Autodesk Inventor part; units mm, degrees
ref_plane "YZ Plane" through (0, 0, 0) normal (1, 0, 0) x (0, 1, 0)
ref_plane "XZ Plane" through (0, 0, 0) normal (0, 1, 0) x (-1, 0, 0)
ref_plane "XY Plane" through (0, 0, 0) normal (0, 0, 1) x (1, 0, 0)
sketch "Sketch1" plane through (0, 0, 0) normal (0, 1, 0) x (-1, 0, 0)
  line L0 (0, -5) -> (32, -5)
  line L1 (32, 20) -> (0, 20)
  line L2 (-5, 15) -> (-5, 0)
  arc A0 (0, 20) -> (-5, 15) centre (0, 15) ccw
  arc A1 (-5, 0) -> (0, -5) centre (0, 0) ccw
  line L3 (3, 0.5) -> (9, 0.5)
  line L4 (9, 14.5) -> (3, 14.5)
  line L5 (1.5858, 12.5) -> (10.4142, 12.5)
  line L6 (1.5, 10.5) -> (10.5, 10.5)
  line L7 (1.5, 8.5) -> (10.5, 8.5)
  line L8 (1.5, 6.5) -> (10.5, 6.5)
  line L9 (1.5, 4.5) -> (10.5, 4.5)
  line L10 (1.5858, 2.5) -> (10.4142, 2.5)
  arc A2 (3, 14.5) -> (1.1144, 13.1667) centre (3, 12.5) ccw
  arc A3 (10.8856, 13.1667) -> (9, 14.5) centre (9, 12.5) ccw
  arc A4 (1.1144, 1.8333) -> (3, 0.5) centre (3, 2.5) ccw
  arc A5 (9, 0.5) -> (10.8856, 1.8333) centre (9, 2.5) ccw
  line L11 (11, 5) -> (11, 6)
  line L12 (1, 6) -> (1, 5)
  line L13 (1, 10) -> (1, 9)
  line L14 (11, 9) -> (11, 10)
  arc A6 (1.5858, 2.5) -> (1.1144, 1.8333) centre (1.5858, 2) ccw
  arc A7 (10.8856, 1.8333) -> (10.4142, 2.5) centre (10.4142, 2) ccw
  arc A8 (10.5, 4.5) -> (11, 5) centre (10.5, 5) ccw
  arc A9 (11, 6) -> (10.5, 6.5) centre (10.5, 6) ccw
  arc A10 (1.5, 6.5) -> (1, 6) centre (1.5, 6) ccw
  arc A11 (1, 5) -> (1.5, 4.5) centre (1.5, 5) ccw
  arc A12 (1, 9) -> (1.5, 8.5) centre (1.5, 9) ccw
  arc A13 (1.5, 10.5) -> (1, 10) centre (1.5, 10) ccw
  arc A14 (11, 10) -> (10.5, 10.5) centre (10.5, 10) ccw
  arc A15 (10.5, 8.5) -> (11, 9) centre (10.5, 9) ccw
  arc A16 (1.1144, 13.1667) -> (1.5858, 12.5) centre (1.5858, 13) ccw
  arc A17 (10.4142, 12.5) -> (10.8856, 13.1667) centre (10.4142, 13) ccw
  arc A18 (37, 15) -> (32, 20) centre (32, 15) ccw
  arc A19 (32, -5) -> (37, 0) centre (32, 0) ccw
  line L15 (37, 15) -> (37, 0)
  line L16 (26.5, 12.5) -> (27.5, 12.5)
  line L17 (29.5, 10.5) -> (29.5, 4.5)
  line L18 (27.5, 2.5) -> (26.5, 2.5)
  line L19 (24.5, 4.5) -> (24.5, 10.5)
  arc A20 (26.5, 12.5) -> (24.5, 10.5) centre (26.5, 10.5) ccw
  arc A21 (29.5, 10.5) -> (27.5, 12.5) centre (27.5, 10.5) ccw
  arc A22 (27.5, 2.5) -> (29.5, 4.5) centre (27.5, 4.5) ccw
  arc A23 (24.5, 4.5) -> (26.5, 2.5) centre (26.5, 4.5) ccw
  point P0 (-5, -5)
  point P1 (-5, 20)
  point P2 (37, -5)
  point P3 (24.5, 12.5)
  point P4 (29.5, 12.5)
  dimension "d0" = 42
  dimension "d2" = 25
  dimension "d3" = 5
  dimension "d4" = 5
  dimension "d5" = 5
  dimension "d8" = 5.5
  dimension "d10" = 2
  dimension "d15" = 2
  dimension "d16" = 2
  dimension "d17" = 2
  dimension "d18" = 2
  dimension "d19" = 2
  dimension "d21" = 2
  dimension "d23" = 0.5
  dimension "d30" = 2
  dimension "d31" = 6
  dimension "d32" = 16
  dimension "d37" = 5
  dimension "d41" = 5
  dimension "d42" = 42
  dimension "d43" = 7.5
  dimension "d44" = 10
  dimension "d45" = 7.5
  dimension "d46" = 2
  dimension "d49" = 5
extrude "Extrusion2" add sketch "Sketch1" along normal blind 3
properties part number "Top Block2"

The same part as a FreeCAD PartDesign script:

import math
import FreeCAD as App
import Part
import Sketcher
from FreeCAD import Vector
Q = App.Units.Quantity

doc = App.newDocument("Part")
params = doc.addObject("Spreadsheet::Sheet", "Params")
for row, (alias, value) in enumerate([
    ("sketch1_radius", "5 mm"),
    ("sketch1_radius2", "2 mm"),
    ("sketch1_radius3", "0.5 mm"),
    ("sketch1_width", "6 mm"),
    ("sketch1_width2", "32 mm"),
    ("pad1_length", "3 mm"),
], start=1):
    params.set(f"A{row}", alias)
    params.set(f"B{row}", "=" + value)
    params.setAlias(f"B{row}", alias)

body = doc.addObject("PartDesign::Body", "Body")

# Sketch on XZ plane
sketch1 = body.newObject("Sketcher::SketchObject", "Sketch")
sketch1.AttachmentSupport = (doc.getObject("XZ_Plane"), [""])
sketch1.MapMode = "FlatFace"
sketch1.addGeometry([
    Part.ArcOfCircle(Part.Circle(Vector(0, 0, 0), Vector(0, 0, 1), 5), math.radians(-90), math.radians(0)),  # 0
    Part.LineSegment(Vector(0, -5, 0), Vector(-32, -5, 0)),  # 1
    Part.ArcOfCircle(Part.Circle(Vector(-32, 0, 0), Vector(0, 0, 1), 5), math.radians(180), math.radians(270)),  # 2
    Part.LineSegment(Vector(-37, 0, 0), Vector(-37, 15, 0)),  # 3
    Part.ArcOfCircle(Part.Circle(Vector(-32, 15, 0), Vector(0, 0, 1), 5), math.radians(90), math.radians(180)),  # 4
    Part.LineSegment(Vector(-32, 20, 0), Vector(0, 20, 0)),  # 5
    Part.ArcOfCircle(Part.Circle(Vector(0, 15, 0), Vector(0, 0, 1), 5), math.radians(0), math.radians(90)),  # 6
    Part.LineSegment(Vector(5, 15, 0), Vector(5, 0, 0)),  # 7
    Part.LineSegment(Vector(-9, 0.5, 0), Vector(-3, 0.5, 0)),  # 8
    Part.ArcOfCircle(Part.Circle(Vector(-3, 2.5, 0), Vector(0, 0, 1), 1.999994), math.radians(-90), math.radians(-19.472294)),  # 9
    Part.ArcOfCircle(Part.Circle(Vector(-1.5858, 2, 0), Vector(0, 0, 1), 0.5), math.radians(-19.474995), math.radians(90)),  # 10
    Part.LineSegment(Vector(-1.5858, 2.5, 0), Vector(-10.4142, 2.5, 0)),  # 11
    Part.ArcOfCircle(Part.Circle(Vector(-10.4142, 2, 0), Vector(0, 0, 1), 0.500007), math.radians(90), math.radians(199.474995)),  # 12
    Part.ArcOfCircle(Part.Circle(Vector(-9, 2.5, 0), Vector(0, 0, 1), 2), math.radians(-160.527706), math.radians(-90)),  # 13
    Part.ArcOfCircle(Part.Circle(Vector(-1.5, 6, 0), Vector(0, 0, 1), 0.5), math.radians(0), math.radians(90)),  # 14
    Part.LineSegment(Vector(-1.5, 6.5, 0), Vector(-10.5, 6.5, 0)),  # 15
    Part.ArcOfCircle(Part.Circle(Vector(-10.5, 6, 0), Vector(0, 0, 1), 0.5), math.radians(90), math.radians(180)),  # 16
    Part.LineSegment(Vector(-11, 6, 0), Vector(-11, 5, 0)),  # 17
    Part.ArcOfCircle(Part.Circle(Vector(-10.5, 5, 0), Vector(0, 0, 1), 0.5), math.radians(180), math.radians(270)),  # 18
    Part.LineSegment(Vector(-10.5, 4.5, 0), Vector(-1.5, 4.5, 0)),  # 19
    Part.ArcOfCircle(Part.Circle(Vector(-1.5, 5, 0), Vector(0, 0, 1), 0.5), math.radians(-90), math.radians(0)),  # 20
    Part.LineSegment(Vector(-1, 5, 0), Vector(-1, 6, 0)),  # 21
    Part.ArcOfCircle(Part.Circle(Vector(-1.5, 10, 0), Vector(0, 0, 1), 0.5), math.radians(0), math.radians(90)),  # 22
    Part.LineSegment(Vector(-1.5, 10.5, 0), Vector(-10.5, 10.5, 0)),  # 23
    Part.ArcOfCircle(Part.Circle(Vector(-10.5, 10, 0), Vector(0, 0, 1), 0.5), math.radians(90), math.radians(180)),  # 24
    Part.LineSegment(Vector(-11, 10, 0), Vector(-11, 9, 0)),  # 25
    Part.ArcOfCircle(Part.Circle(Vector(-10.5, 9, 0), Vector(0, 0, 1), 0.5), math.radians(180), math.radians(270)),  # 26
    Part.LineSegment(Vector(-10.5, 8.5, 0), Vector(-1.5, 8.5, 0)),  # 27
    Part.ArcOfCircle(Part.Circle(Vector(-1.5, 9, 0), Vector(0, 0, 1), 0.5), math.radians(-90), math.radians(0)),  # 28
    Part.LineSegment(Vector(-1, 9, 0), Vector(-1, 10, 0)),  # 29
    Part.LineSegment(Vector(-3, 14.5, 0), Vector(-9, 14.5, 0)),  # 30
    Part.ArcOfCircle(Part.Circle(Vector(-9, 12.5, 0), Vector(0, 0, 1), 1.999994), math.radians(90), math.radians(160.527706)),  # 31
    Part.ArcOfCircle(Part.Circle(Vector(-10.4142, 13, 0), Vector(0, 0, 1), 0.5), math.radians(160.525005), math.radians(270)),  # 32
    Part.LineSegment(Vector(-10.4142, 12.5, 0), Vector(-1.5858, 12.5, 0)),  # 33
    Part.ArcOfCircle(Part.Circle(Vector(-1.5858, 13, 0), Vector(0, 0, 1), 0.500007), math.radians(-90), math.radians(19.474995)),  # 34
    Part.ArcOfCircle(Part.Circle(Vector(-3, 12.5, 0), Vector(0, 0, 1), 2), math.radians(19.472294), math.radians(90)),  # 35
    Part.ArcOfCircle(Part.Circle(Vector(-26.5, 10.5, 0), Vector(0, 0, 1), 2), math.radians(0), math.radians(90)),  # 36
    Part.LineSegment(Vector(-26.5, 12.5, 0), Vector(-27.5, 12.5, 0)),  # 37
    Part.ArcOfCircle(Part.Circle(Vector(-27.5, 10.5, 0), Vector(0, 0, 1), 2), math.radians(90), math.radians(180)),  # 38
    Part.LineSegment(Vector(-29.5, 10.5, 0), Vector(-29.5, 4.5, 0)),  # 39
    Part.ArcOfCircle(Part.Circle(Vector(-27.5, 4.5, 0), Vector(0, 0, 1), 2), math.radians(180), math.radians(270)),  # 40
    Part.LineSegment(Vector(-27.5, 2.5, 0), Vector(-26.5, 2.5, 0)),  # 41
    Part.ArcOfCircle(Part.Circle(Vector(-26.5, 4.5, 0), Vector(0, 0, 1), 2), math.radians(-90), math.radians(0)),  # 42
    Part.LineSegment(Vector(-24.5, 4.5, 0), Vector(-24.5, 10.5, 0)),  # 43
], False)
sketch1.addConstraint([
    Sketcher.Constraint("Tangent", 0, 1, 1, 1),
    Sketcher.Constraint("Tangent", 1, 2, 2, 2),
    Sketcher.Constraint("Tangent", 2, 1, 3, 1),
    Sketcher.Constraint("Tangent", 3, 2, 4, 2),
    Sketcher.Constraint("Tangent", 4, 1, 5, 1),
    Sketcher.Constraint("Tangent", 5, 2, 6, 2),
    Sketcher.Constraint("Tangent", 6, 1, 7, 1),
    Sketcher.Constraint("Tangent", 7, 2, 0, 2),
    Sketcher.Constraint("Tangent", 8, 2, 9, 1),
    Sketcher.Constraint("Tangent", 9, 2, 10, 1),
    Sketcher.Constraint("Tangent", 10, 2, 11, 1),
    Sketcher.Constraint("Tangent", 11, 2, 12, 1),
    Sketcher.Constraint("Tangent", 12, 2, 13, 1),
    Sketcher.Constraint("Tangent", 13, 2, 8, 1),
    Sketcher.Constraint("Tangent", 14, 2, 15, 1),
    Sketcher.Constraint("Tangent", 15, 2, 16, 1),
    Sketcher.Constraint("Tangent", 16, 2, 17, 1),
    Sketcher.Constraint("Tangent", 17, 2, 18, 1),
    Sketcher.Constraint("Tangent", 18, 2, 19, 1),
    Sketcher.Constraint("Tangent", 19, 2, 20, 1),
    Sketcher.Constraint("Tangent", 20, 2, 21, 1),
    Sketcher.Constraint("Tangent", 21, 2, 14, 1),
    Sketcher.Constraint("Tangent", 22, 2, 23, 1),
    Sketcher.Constraint("Tangent", 23, 2, 24, 1),
    Sketcher.Constraint("Tangent", 24, 2, 25, 1),
    Sketcher.Constraint("Tangent", 25, 2, 26, 1),
    Sketcher.Constraint("Tangent", 26, 2, 27, 1),
    Sketcher.Constraint("Tangent", 27, 2, 28, 1),
    Sketcher.Constraint("Tangent", 28, 2, 29, 1),
    Sketcher.Constraint("Tangent", 29, 2, 22, 1),
    Sketcher.Constraint("Tangent", 30, 2, 31, 1),
    Sketcher.Constraint("Tangent", 31, 2, 32, 1),
    Sketcher.Constraint("Tangent", 32, 2, 33, 1),
    Sketcher.Constraint("Tangent", 33, 2, 34, 1),
    Sketcher.Constraint("Tangent", 34, 2, 35, 1),
    Sketcher.Constraint("Tangent", 35, 2, 30, 1),
    Sketcher.Constraint("Tangent", 36, 2, 37, 1),
    Sketcher.Constraint("Tangent", 37, 2, 38, 1),
    Sketcher.Constraint("Tangent", 38, 2, 39, 1),
    Sketcher.Constraint("Tangent", 39, 2, 40, 1),
    Sketcher.Constraint("Tangent", 40, 2, 41, 1),
    Sketcher.Constraint("Tangent", 41, 2, 42, 1),
    Sketcher.Constraint("Tangent", 42, 2, 43, 1),
    Sketcher.Constraint("Tangent", 43, 2, 36, 1),
    Sketcher.Constraint("Horizontal", 1),
    Sketcher.Constraint("Vertical", 3),
    Sketcher.Constraint("Horizontal", 5),
    Sketcher.Constraint("Vertical", 7),
    Sketcher.Constraint("Horizontal", 8),
    Sketcher.Constraint("Horizontal", 11),
    Sketcher.Constraint("Horizontal", 15),
    Sketcher.Constraint("Vertical", 17),
    Sketcher.Constraint("Horizontal", 19),
    Sketcher.Constraint("Vertical", 21),
    Sketcher.Constraint("Horizontal", 23),
    Sketcher.Constraint("Vertical", 25),
    Sketcher.Constraint("Horizontal", 27),
    Sketcher.Constraint("Vertical", 29),
    Sketcher.Constraint("Horizontal", 30),
    Sketcher.Constraint("Horizontal", 33),
    Sketcher.Constraint("Horizontal", 37),
    Sketcher.Constraint("Vertical", 39),
    Sketcher.Constraint("Horizontal", 41),
    Sketcher.Constraint("Vertical", 43),
    Sketcher.Constraint("Coincident", 0, 3, -1, 1),
    Sketcher.Constraint("Equal", 0, 2),
    Sketcher.Constraint("Equal", 2, 4),
    Sketcher.Constraint("Equal", 4, 6),
    Sketcher.Constraint("Equal", 10, 12),
    Sketcher.Constraint("Equal", 9, 13),
    Sketcher.Constraint("Equal", 12, 14),
    Sketcher.Constraint("Equal", 14, 16),
    Sketcher.Constraint("Equal", 16, 18),
    Sketcher.Constraint("Equal", 18, 20),
    Sketcher.Constraint("Equal", 20, 22),
    Sketcher.Constraint("Equal", 22, 24),
    Sketcher.Constraint("Equal", 24, 26),
    Sketcher.Constraint("Equal", 26, 28),
    Sketcher.Constraint("Equal", 13, 31),
    Sketcher.Constraint("Equal", 28, 32),
    Sketcher.Constraint("Equal", 32, 34),
    Sketcher.Constraint("Equal", 31, 35),
    Sketcher.Constraint("Equal", 35, 36),
    Sketcher.Constraint("Equal", 36, 38),
    Sketcher.Constraint("Equal", 38, 40),
    Sketcher.Constraint("Equal", 40, 42),
    Sketcher.Constraint("Horizontal", 13, 3, 10, 2),
    Sketcher.Constraint("Horizontal", 42, 3, 18, 2),
    Sketcher.Constraint("Horizontal", 38, 3, 22, 2),
    Sketcher.Constraint("Horizontal", 35, 3, 32, 2),
    Sketcher.Constraint("Horizontal", 33, 2, 36, 2),
    Sketcher.Constraint("Horizontal", 11, 2, 40, 2),
    Sketcher.Constraint("Vertical", 20, 3, 22, 3),
    Sketcher.Constraint("Vertical", 18, 3, 24, 3),
    Sketcher.Constraint("Vertical", 13, 3, 31, 3),
    Sketcher.Constraint("Vertical", 10, 3, 34, 3),
    Sketcher.Constraint("Equal", 41, 17),
    Sketcher.Constraint("Equal", 21, 25),
    Sketcher.Constraint("Equal", 30, 39),
    Sketcher.Constraint("Radius", 0, Q("5 mm")),
    Sketcher.Constraint("Radius", 9, Q("2 mm")),
    Sketcher.Constraint("Radius", 10, Q("0.5 mm")),
    Sketcher.Constraint("DistanceX", 8, 1, 8, 2, Q("6 mm")),
    Sketcher.Constraint("DistanceY", -1, 1, 10, 3, Q("2 mm")),
    Sketcher.Constraint("DistanceY", -1, 1, 14, 3, Q("6 mm")),
    Sketcher.Constraint("DistanceX", 1, 2, 1, 1, Q("32 mm")),
    Sketcher.Constraint("DistanceX", 15, 2, 15, 1, Q("9 mm")),
    Sketcher.Constraint("DistanceY", 3, 1, 3, 2, Q("15 mm")),
    Sketcher.Constraint("DistanceX", 9, 3, -1, 1, Q("3 mm")),
    Sketcher.Constraint("DistanceX", 16, 2, -1, 1, Q("11 mm")),
    Sketcher.Constraint("DistanceX", 36, 3, -1, 1, Q("26.5 mm")),
])
sketch1.setExpression("Constraints[99]", "Params.sketch1_radius")
sketch1.setExpression("Constraints[100]", "Params.sketch1_radius2")
sketch1.setExpression("Constraints[101]", "Params.sketch1_radius3")
sketch1.setExpression("Constraints[102]", "Params.sketch1_width")
sketch1.setExpression("Constraints[105]", "Params.sketch1_width2")
pad1 = body.newObject("PartDesign::Pad", "Pad")
pad1.Profile = sketch1
pad1.setExpression("Length", "Params.pad1_length")
pad1.Reversed = True

doc.recompute()
